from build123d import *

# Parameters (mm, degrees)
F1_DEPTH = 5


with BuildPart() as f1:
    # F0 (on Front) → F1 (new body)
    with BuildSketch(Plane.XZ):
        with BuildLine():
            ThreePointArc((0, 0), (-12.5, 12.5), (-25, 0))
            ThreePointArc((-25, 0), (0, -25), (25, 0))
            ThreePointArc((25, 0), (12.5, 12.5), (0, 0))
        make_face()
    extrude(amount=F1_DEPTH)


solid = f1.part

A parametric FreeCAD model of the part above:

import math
import FreeCAD as App
import Part
import Sketcher

V = App.Vector
Q = App.Units.Quantity

doc = App.newDocument("Part")
body = doc.addObject("PartDesign::Body", "Body")

# Sketch on XZ plane
sketch1 = doc.addObject("Sketcher::SketchObject", "Sketch")
body.addObject(sketch1)
sketch1.AttachmentSupport = (doc.XZ_Plane, [""])
sketch1.MapMode = "FlatFace"
sketch1.addGeometry(Part.ArcOfCircle(Part.Circle(V(-12, 0, 0), V(0, 0, 1), 12), math.radians(0), math.radians(180)), False)
sketch1.addGeometry(Part.ArcOfCircle(Part.Circle(V(0, 0, 0), V(0, 0, 1), 25), math.radians(180), math.radians(360)), False)
sketch1.addGeometry(Part.ArcOfCircle(Part.Circle(V(12, 0, 0), V(0, 0, 1), 12), math.radians(0), math.radians(180)), False)
sketch1.addConstraint(Sketcher.Constraint("Tangent", 0, 2, 1, 1))
sketch1.addConstraint(Sketcher.Constraint("Tangent", 1, 2, 2, 1))
sketch1.addConstraint(Sketcher.Constraint("Tangent", 2, 2, 0, 1))
sketch1.addConstraint(Sketcher.Constraint("Coincident", 1, 3, -1, 1))
sketch1.addConstraint(Sketcher.Constraint("Coincident", 2, 2, -1, 1))
sketch1.addConstraint(Sketcher.Constraint("PointOnObject", 0, 3, -1))
sketch1.addConstraint(Sketcher.Constraint("Radius", 1, Q("25 mm")))
pad1 = doc.addObject("PartDesign::Pad", "Pad")
body.addObject(pad1)
pad1.Profile = sketch1
pad1.Length = 5

doc.recompute()
